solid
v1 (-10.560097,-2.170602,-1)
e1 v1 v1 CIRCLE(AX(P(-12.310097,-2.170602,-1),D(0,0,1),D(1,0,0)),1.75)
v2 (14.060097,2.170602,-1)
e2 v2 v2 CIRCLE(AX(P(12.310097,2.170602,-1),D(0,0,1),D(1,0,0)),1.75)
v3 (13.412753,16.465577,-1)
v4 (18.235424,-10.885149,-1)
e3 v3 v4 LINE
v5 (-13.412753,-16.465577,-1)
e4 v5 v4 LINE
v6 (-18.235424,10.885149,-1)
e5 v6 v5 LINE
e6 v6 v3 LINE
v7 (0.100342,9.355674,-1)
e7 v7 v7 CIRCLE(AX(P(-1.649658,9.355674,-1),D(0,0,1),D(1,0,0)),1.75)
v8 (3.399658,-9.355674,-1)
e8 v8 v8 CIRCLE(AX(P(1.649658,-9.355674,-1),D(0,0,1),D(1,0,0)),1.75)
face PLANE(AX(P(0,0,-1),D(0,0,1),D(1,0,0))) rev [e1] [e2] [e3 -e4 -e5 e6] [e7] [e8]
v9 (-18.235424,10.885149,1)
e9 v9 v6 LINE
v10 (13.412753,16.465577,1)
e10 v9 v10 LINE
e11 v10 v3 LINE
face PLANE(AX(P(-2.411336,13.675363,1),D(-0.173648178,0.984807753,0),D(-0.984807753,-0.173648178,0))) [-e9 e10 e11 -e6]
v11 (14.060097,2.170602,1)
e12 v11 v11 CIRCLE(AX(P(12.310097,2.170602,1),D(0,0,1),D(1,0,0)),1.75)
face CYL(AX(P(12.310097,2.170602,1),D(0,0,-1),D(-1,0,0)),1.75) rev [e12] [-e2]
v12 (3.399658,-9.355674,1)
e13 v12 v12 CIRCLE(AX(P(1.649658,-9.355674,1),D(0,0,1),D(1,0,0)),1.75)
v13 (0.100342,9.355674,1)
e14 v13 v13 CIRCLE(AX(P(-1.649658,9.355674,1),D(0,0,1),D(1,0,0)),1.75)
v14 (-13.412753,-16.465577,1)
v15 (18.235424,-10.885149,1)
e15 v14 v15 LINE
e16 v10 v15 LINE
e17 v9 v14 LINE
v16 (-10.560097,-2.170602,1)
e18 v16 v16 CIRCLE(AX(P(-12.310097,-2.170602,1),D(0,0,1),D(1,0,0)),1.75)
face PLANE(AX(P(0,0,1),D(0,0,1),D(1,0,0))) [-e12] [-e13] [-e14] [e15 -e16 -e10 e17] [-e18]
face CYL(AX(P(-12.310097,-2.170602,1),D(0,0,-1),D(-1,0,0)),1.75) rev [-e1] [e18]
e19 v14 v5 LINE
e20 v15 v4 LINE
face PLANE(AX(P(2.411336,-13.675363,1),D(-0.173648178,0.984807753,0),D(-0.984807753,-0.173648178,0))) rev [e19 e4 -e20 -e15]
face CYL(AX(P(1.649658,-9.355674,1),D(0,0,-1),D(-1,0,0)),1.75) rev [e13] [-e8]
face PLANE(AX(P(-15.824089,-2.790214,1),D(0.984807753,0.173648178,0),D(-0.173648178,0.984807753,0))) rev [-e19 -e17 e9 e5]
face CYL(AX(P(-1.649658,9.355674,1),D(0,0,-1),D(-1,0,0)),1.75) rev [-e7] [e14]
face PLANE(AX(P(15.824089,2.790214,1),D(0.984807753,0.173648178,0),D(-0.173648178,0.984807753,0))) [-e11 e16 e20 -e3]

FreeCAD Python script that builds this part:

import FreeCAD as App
import Part
import Sketcher

V = App.Vector
Q = App.Units.Quantity


def add_polygon(sketch, points):
    """Adds a closed chain of lines whose ends are joined by coincident constraints."""
    first, n = sketch.GeometryCount, len(points)
    for a, b in zip(points, points[1:] + points[:1]):
        sketch.addGeometry(Part.LineSegment(App.Vector(*a, 0), App.Vector(*b, 0)), False)
    for i in range(n):
        sketch.addConstraint(Sketcher.Constraint("Coincident", first + i, 2, first + (i + 1) % n, 1))

doc = App.newDocument("Part")
body = doc.addObject("PartDesign::Body", "Body")

sketch1 = doc.addObject("Sketcher::SketchObject", "Sketch")
body.addObject(sketch1)
sketch1.AttachmentSupport = (doc.XY_Plane, [""])
sketch1.MapMode = "FlatFace"
add_polygon(sketch1, [(18.2, -10.9), (13.4, 16.5), (-18.2, 10.9), (-13.4, -16.5)])
sketch1.addGeometry(Part.Circle(V(-1.6, 9.4, 0), V(0, 0, 1), 1.8), False)
sketch1.addGeometry(Part.Circle(V(12.3, 2.2, 0), V(0, 0, 1), 1.8), False)
sketch1.addGeometry(Part.Circle(V(-12.3, -2.2, 0), V(0, 0, 1), 1.8), False)
sketch1.addGeometry(Part.Circle(V(1.6, -9.4, 0), V(0, 0, 1), 1.8), False)
sketch1.addConstraint([
    Sketcher.Constraint("Equal", 4, 5),
    Sketcher.Constraint("Equal", 5, 6),
    Sketcher.Constraint("Equal", 6, 7),
    Sketcher.Constraint("Symmetric", 5, 3, 6, 3, -1, 1),
    Sketcher.Constraint("Symmetric", 4, 3, 7, 3, -1, 1),
    Sketcher.Constraint("Symmetric", 0, 2, 2, 2, -1, 1),
    Sketcher.Constraint("Symmetric", 1, 2, 3, 2, -1, 1),
    Sketcher.Constraint("Perpendicular", 0, 1),
    Sketcher.Constraint("Diameter", 4, 3.5),
    Sketcher.Constraint("Angle", 0, Q("100 deg")),
    Sketcher.Constraint("Distance", 1, 32.136402),
    Sketcher.Constraint("DistanceY", -1, 1, 1, 2, 10.885149),
    Sketcher.Constraint("DistanceY", 5, 3, 4, 3, 7.185071),
    Sketcher.Constraint("DistanceX", 6, 3, 4, 3, 10.660439),
    Sketcher.Constraint("DistanceX", 4, 3, 0, 2, 15.062411),
    Sketcher.Constraint("DistanceY", 7, 3, 0, 2, 25.821251),
])
pad1 = doc.addObject("PartDesign::Pad", "Pad")
body.addObject(pad1)
pad1.Profile = sketch1
pad1.Length = 2
pad1.Midplane = True

doc.recompute()
